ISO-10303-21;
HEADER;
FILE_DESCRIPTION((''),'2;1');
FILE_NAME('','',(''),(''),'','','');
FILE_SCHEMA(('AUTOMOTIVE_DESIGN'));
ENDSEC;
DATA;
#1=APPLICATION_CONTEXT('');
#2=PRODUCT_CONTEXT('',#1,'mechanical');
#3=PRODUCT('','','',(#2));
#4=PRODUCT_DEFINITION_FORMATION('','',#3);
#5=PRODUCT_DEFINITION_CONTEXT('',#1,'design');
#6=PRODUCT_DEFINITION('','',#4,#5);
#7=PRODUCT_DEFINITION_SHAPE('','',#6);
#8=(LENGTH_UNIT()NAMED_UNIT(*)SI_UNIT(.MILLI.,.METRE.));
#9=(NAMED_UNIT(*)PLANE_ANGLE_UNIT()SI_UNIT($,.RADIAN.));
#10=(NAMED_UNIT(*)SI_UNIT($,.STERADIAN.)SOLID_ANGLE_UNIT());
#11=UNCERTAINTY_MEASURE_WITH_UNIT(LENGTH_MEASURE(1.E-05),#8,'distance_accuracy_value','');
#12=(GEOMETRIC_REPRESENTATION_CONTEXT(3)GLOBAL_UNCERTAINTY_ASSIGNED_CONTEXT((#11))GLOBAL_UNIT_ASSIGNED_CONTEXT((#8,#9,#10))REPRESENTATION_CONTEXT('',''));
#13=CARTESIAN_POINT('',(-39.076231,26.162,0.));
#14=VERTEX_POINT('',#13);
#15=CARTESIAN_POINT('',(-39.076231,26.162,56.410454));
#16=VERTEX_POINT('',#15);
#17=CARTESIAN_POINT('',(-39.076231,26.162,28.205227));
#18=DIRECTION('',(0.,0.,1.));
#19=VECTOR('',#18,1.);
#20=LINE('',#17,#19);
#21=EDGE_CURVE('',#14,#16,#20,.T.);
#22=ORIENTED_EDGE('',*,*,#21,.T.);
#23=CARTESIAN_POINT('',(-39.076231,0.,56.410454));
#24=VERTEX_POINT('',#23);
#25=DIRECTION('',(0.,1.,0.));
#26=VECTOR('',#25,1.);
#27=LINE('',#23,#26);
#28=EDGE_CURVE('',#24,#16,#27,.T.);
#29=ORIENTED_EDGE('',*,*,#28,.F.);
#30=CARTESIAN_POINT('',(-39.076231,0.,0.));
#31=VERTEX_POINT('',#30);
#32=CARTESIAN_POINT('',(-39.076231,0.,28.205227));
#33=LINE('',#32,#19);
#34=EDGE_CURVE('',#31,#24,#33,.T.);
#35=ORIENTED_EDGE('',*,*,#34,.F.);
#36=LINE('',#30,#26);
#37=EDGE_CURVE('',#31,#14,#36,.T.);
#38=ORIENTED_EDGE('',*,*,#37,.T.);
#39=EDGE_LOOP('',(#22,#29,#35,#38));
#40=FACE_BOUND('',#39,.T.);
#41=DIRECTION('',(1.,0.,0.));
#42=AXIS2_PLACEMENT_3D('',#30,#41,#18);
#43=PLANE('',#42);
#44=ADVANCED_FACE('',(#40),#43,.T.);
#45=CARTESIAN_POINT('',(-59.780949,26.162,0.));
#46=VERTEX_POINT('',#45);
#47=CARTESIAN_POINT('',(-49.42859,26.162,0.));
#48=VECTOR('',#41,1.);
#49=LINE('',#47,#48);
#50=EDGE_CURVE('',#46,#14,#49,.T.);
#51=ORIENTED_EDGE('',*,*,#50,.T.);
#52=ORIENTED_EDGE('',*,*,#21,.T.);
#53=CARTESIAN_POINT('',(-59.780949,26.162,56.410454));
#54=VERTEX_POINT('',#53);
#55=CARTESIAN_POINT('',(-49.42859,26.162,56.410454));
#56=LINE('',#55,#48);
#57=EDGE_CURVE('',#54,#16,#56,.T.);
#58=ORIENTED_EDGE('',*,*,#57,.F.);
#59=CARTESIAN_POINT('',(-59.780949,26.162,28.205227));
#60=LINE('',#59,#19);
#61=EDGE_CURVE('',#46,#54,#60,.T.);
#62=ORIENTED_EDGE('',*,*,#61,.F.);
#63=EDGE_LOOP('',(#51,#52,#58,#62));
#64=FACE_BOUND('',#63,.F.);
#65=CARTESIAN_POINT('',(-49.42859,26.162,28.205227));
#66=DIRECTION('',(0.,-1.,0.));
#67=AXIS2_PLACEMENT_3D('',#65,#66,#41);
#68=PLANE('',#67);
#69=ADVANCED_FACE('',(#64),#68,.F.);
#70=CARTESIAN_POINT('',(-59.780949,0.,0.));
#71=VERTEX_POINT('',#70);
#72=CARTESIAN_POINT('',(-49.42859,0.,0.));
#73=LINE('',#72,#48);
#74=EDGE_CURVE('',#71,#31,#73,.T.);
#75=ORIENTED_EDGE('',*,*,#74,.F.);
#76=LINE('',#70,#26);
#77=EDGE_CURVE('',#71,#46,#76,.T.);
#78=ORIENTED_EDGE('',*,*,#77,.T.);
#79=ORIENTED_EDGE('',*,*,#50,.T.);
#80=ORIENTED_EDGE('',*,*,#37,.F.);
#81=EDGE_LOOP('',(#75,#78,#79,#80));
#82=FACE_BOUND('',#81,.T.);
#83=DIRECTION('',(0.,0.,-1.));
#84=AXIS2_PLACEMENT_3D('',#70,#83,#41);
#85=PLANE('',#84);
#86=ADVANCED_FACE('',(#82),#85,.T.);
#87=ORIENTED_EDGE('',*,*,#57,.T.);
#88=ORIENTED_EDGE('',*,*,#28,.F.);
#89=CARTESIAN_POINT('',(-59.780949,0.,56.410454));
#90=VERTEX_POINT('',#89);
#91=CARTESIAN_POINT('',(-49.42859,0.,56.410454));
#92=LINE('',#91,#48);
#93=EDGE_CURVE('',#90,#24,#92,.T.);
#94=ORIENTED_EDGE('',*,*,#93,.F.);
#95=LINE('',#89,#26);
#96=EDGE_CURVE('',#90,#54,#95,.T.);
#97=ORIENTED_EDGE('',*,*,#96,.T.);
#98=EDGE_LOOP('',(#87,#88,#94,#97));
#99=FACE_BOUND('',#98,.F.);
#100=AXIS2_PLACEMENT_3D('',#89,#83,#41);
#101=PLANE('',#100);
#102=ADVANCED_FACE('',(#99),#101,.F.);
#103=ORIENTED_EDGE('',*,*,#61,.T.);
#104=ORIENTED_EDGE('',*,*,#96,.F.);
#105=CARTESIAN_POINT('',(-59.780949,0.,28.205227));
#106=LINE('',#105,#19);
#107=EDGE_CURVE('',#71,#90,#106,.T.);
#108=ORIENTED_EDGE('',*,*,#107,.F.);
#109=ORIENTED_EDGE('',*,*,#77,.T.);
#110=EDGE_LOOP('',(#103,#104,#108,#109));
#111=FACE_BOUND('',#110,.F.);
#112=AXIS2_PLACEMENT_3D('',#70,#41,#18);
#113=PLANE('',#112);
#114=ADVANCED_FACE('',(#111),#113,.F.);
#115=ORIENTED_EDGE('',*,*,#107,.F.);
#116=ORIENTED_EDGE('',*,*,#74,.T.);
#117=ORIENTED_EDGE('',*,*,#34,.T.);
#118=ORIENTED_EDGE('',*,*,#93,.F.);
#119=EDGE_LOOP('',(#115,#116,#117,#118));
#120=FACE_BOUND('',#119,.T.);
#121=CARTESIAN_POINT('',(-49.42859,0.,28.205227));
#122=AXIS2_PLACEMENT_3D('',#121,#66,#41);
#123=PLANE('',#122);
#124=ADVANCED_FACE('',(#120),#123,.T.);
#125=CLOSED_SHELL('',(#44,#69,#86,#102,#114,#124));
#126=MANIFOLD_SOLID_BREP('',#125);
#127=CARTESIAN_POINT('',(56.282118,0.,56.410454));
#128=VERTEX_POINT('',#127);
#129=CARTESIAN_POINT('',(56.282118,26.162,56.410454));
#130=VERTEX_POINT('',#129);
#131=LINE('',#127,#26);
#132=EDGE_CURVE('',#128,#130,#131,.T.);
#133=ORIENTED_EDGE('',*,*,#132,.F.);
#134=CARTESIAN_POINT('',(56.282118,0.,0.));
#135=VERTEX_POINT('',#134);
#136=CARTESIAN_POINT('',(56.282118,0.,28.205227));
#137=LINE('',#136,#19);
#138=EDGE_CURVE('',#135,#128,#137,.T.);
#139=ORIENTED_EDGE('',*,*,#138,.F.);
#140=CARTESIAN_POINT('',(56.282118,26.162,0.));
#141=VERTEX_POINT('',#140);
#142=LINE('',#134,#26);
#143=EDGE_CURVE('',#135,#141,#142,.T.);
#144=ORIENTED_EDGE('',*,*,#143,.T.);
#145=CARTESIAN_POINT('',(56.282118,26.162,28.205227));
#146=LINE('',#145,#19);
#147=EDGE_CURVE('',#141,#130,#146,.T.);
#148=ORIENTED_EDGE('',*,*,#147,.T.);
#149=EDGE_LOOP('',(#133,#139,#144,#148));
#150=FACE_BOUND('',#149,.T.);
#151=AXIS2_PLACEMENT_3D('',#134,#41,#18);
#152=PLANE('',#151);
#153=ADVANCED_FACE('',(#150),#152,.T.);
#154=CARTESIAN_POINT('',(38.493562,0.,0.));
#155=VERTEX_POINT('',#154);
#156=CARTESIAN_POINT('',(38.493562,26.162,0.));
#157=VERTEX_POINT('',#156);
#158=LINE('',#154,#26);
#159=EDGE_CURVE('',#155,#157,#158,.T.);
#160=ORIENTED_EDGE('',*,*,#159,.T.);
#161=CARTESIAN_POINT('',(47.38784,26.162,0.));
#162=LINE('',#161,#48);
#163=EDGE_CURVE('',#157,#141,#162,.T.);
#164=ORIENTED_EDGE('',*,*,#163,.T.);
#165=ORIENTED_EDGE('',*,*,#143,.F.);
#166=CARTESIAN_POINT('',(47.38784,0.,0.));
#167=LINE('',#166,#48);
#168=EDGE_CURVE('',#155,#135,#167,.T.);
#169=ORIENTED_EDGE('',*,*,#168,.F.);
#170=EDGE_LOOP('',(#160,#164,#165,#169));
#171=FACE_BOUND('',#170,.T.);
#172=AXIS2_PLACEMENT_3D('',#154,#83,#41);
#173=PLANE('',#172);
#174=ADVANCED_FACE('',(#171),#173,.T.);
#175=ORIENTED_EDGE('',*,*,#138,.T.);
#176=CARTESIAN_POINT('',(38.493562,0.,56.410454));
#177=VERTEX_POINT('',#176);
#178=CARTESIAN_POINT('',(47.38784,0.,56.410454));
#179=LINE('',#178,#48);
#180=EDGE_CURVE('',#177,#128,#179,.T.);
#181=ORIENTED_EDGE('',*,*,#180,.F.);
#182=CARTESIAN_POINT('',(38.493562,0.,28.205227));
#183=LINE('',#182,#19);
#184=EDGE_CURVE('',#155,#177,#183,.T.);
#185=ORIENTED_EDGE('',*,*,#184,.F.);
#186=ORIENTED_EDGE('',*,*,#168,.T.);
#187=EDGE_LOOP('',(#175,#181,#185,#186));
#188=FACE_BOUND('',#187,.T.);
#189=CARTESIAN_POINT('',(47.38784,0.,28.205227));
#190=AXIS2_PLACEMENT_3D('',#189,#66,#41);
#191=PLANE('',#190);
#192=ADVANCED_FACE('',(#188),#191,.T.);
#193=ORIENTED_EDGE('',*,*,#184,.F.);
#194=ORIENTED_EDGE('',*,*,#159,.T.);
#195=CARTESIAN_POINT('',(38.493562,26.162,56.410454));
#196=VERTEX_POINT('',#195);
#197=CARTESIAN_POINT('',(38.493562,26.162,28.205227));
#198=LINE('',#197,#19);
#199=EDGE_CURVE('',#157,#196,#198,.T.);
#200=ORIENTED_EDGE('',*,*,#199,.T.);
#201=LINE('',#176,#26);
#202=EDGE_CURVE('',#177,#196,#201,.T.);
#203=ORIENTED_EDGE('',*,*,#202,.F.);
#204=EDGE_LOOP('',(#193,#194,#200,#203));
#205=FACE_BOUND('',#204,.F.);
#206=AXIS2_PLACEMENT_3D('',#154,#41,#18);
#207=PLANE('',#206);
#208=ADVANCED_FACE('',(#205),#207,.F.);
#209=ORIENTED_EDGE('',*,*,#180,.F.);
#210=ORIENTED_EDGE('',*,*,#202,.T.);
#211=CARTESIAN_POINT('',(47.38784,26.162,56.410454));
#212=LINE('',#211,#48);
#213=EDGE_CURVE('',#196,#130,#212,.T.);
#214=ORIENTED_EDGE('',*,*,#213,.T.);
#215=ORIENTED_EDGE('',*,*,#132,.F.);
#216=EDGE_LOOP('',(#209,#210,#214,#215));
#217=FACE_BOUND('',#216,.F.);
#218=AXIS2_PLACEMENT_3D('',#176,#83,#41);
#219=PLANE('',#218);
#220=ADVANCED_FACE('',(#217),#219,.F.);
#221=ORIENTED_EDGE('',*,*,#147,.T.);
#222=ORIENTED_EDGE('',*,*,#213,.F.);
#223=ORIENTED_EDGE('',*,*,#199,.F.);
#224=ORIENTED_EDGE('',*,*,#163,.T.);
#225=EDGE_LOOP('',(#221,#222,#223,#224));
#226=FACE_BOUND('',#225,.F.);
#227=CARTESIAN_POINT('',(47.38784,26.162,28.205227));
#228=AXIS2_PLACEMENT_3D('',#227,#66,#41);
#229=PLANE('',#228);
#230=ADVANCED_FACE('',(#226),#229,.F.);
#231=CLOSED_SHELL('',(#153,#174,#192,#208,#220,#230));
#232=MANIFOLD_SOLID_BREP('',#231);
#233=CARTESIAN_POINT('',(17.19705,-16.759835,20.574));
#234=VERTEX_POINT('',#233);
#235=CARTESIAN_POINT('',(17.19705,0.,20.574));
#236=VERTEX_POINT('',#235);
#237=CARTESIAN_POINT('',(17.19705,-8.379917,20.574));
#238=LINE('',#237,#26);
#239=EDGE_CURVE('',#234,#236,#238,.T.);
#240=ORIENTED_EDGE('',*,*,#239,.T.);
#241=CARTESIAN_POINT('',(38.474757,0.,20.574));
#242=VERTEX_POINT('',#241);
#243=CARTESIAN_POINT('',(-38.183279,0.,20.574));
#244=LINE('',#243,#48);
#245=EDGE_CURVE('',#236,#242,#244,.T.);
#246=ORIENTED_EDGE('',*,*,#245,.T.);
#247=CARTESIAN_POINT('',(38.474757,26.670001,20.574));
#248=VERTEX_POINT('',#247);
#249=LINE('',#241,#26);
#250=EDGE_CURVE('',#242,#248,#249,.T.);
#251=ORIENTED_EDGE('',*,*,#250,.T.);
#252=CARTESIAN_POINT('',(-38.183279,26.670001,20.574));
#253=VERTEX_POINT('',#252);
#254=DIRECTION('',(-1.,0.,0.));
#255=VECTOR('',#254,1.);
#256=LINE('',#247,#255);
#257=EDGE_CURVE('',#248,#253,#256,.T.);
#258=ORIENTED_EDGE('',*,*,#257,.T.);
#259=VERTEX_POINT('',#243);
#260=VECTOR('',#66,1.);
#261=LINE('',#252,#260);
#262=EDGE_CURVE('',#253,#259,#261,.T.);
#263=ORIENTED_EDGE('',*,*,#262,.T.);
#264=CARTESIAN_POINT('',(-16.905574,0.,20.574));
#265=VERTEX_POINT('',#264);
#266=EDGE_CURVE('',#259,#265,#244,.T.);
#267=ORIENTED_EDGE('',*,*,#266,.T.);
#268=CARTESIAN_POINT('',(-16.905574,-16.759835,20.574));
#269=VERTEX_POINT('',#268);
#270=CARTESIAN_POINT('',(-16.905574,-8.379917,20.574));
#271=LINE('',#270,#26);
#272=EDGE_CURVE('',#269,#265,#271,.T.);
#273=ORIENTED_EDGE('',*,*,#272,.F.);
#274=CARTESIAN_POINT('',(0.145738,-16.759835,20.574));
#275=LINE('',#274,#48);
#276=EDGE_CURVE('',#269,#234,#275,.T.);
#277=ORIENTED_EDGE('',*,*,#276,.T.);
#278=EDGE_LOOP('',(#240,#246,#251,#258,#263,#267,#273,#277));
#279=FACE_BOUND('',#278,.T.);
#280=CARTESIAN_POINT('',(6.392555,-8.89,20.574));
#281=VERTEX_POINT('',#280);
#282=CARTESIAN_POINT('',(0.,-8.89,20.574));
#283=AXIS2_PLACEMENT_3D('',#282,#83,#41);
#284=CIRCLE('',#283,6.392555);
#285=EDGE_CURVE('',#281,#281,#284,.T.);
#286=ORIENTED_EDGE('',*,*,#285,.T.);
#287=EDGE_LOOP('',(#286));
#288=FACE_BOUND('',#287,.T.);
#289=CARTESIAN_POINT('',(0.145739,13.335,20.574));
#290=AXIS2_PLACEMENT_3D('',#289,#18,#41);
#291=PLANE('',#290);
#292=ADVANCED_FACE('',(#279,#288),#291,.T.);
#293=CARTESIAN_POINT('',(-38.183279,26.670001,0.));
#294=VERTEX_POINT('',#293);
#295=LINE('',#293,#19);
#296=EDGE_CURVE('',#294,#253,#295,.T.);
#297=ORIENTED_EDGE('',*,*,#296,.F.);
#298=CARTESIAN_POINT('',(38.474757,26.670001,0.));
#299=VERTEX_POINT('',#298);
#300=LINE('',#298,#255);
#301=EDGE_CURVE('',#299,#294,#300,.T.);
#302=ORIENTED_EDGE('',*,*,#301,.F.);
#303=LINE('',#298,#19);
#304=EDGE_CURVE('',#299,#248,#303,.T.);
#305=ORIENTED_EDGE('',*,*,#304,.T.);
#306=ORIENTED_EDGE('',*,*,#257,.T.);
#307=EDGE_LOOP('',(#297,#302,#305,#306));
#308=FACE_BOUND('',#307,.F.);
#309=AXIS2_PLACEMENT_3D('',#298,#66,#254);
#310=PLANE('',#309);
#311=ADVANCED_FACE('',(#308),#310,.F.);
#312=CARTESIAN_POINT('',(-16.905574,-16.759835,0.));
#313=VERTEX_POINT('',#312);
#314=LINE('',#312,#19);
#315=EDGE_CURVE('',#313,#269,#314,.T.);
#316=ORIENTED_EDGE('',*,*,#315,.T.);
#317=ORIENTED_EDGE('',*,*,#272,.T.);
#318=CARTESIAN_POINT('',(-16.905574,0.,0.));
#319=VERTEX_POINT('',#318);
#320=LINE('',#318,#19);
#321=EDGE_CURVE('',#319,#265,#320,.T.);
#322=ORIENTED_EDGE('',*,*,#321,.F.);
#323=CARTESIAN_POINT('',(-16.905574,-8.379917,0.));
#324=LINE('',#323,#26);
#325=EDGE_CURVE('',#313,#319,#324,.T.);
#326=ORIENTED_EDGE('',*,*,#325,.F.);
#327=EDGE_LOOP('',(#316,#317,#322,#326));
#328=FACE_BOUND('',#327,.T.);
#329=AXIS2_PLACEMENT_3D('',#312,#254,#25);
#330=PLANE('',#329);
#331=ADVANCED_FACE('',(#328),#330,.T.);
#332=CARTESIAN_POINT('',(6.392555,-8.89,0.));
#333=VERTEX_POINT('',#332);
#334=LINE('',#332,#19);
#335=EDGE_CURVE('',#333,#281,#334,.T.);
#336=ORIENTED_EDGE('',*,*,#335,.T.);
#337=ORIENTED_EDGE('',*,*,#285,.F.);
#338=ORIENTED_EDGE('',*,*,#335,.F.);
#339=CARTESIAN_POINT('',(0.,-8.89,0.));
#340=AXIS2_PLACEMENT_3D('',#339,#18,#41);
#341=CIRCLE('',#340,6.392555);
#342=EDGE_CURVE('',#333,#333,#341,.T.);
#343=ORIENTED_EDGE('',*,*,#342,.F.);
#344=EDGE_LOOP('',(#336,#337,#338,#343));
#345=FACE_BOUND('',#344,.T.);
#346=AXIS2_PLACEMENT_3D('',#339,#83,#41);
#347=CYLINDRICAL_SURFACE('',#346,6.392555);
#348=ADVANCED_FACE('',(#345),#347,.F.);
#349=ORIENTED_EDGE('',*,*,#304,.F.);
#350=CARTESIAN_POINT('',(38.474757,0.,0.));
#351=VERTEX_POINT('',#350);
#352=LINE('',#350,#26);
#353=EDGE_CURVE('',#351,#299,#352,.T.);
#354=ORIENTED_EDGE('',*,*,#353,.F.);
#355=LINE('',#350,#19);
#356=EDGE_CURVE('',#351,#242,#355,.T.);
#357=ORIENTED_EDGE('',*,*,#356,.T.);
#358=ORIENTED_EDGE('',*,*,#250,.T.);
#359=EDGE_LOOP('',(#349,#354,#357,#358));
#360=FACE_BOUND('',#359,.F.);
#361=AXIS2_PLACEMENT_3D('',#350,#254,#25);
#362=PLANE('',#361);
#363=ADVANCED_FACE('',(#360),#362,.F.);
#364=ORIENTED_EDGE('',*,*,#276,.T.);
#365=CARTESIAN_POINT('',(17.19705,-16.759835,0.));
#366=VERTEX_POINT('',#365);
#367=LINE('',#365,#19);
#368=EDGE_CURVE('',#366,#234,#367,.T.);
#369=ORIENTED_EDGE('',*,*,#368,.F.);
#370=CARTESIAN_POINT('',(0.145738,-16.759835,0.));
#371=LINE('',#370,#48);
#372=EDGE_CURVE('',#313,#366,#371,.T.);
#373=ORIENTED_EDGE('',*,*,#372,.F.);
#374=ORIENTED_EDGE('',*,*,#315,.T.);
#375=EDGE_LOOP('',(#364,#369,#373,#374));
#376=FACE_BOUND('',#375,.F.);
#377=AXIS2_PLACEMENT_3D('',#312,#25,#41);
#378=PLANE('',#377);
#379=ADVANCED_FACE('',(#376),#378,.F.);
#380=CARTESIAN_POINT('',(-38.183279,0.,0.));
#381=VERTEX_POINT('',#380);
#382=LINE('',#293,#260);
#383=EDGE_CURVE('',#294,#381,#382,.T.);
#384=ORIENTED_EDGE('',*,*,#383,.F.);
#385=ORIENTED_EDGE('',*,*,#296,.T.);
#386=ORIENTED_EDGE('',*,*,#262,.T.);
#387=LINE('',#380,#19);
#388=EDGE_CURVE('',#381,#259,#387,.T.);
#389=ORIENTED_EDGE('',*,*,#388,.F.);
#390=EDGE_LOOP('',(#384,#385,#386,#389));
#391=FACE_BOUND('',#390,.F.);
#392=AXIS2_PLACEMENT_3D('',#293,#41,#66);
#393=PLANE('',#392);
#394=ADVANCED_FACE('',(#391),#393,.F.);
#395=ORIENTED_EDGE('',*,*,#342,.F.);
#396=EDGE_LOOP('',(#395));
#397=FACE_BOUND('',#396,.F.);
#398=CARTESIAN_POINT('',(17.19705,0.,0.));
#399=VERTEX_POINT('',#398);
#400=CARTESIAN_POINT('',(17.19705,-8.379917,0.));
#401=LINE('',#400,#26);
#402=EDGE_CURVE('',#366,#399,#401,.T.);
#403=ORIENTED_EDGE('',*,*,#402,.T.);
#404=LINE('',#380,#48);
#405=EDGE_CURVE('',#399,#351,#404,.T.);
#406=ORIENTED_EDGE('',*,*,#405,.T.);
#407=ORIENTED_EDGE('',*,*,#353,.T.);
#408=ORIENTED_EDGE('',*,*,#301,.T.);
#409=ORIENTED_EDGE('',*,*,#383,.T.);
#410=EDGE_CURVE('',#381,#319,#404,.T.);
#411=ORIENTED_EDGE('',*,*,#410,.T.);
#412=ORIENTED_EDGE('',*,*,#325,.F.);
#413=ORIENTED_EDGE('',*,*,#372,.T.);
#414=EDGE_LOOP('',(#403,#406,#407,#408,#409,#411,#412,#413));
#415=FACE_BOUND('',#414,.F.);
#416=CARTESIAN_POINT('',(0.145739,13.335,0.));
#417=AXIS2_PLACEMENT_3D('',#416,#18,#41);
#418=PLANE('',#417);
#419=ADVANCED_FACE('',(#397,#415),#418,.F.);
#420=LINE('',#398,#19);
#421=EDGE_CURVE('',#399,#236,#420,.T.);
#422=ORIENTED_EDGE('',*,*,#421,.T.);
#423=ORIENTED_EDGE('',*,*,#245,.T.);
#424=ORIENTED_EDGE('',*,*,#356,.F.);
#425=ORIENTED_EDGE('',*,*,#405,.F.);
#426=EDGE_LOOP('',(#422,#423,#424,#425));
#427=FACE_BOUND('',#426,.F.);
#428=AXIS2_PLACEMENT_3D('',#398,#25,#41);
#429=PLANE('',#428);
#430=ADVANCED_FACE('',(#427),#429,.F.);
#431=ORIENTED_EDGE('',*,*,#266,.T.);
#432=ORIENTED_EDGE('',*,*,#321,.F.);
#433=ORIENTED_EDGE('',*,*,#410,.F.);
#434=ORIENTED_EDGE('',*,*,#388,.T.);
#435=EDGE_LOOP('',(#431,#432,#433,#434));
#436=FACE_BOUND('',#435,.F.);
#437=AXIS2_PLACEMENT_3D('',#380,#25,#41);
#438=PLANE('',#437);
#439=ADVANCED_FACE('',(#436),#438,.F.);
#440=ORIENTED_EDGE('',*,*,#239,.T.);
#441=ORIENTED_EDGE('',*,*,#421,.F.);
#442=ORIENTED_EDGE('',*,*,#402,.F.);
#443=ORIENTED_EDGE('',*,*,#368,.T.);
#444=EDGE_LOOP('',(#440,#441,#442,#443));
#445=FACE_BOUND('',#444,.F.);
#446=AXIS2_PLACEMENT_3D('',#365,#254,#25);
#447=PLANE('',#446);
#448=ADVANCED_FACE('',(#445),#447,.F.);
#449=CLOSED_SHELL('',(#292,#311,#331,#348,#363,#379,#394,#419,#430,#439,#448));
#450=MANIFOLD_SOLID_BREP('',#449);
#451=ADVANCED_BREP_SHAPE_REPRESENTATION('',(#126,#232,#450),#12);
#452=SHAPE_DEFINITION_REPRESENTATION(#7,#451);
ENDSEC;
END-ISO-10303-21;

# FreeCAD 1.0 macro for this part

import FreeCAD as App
import Part
import Sketcher
Q = App.Units.Quantity

doc = App.newDocument("Part")
body = doc.addObject("PartDesign::Body", "Body")

sketch1 = doc.addObject("Sketcher::SketchObject", "Sketch")
body.addObject(sketch1)
sketch1.AttachmentSupport = (doc.XY_Plane, [""])
sketch1.MapMode = "FlatFace"
sketch1.addGeometry([
    Part.LineSegment(App.Vector(-38, 27, 0), App.Vector(-38, 0, 0)),
    Part.LineSegment(App.Vector(-38, 0, 0), App.Vector(-17, 0, 0)),
    Part.LineSegment(App.Vector(-17, 0, 0), App.Vector(-17, -17, 0)),
    Part.LineSegment(App.Vector(-17, -17, 0), App.Vector(17, -17, 0)),
    Part.LineSegment(App.Vector(17, -17, 0), App.Vector(17, 0, 0)),
    Part.LineSegment(App.Vector(17, 0, 0), App.Vector(38, 0, 0)),
    Part.LineSegment(App.Vector(38, 0, 0), App.Vector(38, 27, 0)),
    Part.LineSegment(App.Vector(38, 27, 0), App.Vector(-38, 27, 0)),
], False)
sketch1.addConstraint([
    Sketcher.Constraint("Coincident", 0, 2, 1, 1),
    Sketcher.Constraint("Coincident", 1, 2, 2, 1),
    Sketcher.Constraint("Coincident", 2, 2, 3, 1),
    Sketcher.Constraint("Coincident", 3, 2, 4, 1),
    Sketcher.Constraint("Coincident", 4, 2, 5, 1),
    Sketcher.Constraint("Coincident", 5, 2, 6, 1),
    Sketcher.Constraint("Coincident", 6, 2, 7, 1),
    Sketcher.Constraint("Coincident", 7, 2, 0, 1),
    Sketcher.Constraint("Vertical", 0),
    Sketcher.Constraint("Horizontal", 1),
    Sketcher.Constraint("Vertical", 2),
    Sketcher.Constraint("Horizontal", 3),
    Sketcher.Constraint("Vertical", 4),
    Sketcher.Constraint("Horizontal", 5),
    Sketcher.Constraint("Vertical", 6),
    Sketcher.Constraint("Horizontal", 7),
    Sketcher.Constraint("PointOnObject", 0, 2, -1),
    Sketcher.Constraint("PointOnObject", 4, 2, -1),
    Sketcher.Constraint("Equal", 1, 5),
    Sketcher.Constraint("DistanceY", 0, 2, 0, 1, Q("1.05 in")),
    Sketcher.Constraint("DistanceX", 1, 1, 1, 2, 21.277705),
    Sketcher.Constraint("DistanceX", 3, 1, 3, 2, 34.102624),
    Sketcher.Constraint("DistanceY", 2, 2, 2, 1, 16.759835),
    Sketcher.Constraint("DistanceX", 0, 2, -1, 1, 38.183279),
])
pad1 = doc.addObject("PartDesign::Pad", "Pad")
body.addObject(pad1)
pad1.Profile = sketch1
pad1.Length = Q("0.81 in")

sketch2 = doc.addObject("Sketcher::SketchObject", "Sketch001")
body.addObject(sketch2)
sketch2.AttachmentSupport = (doc.XY_Plane, [""])
sketch2.MapMode = "FlatFace"
sketch2.addGeometry(Part.Circle(App.Vector(0, -9, 0), App.Vector(0, 0, 1), 6), False)
sketch2.addConstraint([
    Sketcher.Constraint("PointOnObject", 0, 3, -2),
    Sketcher.Constraint("DistanceY", 0, 3, -1, 1, Q("0.35 in")),
    Sketcher.Constraint("Diameter", 0, 12.78511),
])
pocket1 = doc.addObject("PartDesign::Pocket", "Pocket")
body.addObject(pocket1)
pocket1.Profile = sketch2
pocket1.Length = Q("2.77 in")
pocket1.Reversed = True
body2 = doc.addObject("PartDesign::Body", "Body001")
body2.AllowCompound = True

sketch3 = doc.addObject("Sketcher::SketchObject", "Sketch002")
body2.addObject(sketch3)
sketch3.AttachmentSupport = (doc.getObject("XZ_Plane001"), [""])
sketch3.MapMode = "FlatFace"
sketch3.addGeometry([
    Part.LineSegment(App.Vector(-60, 56, 0), App.Vector(-60, 0, 0)),
    Part.LineSegment(App.Vector(-60, 0, 0), App.Vector(-39, 0, 0)),
    Part.LineSegment(App.Vector(-39, 0, 0), App.Vector(-39, 56, 0)),
    Part.LineSegment(App.Vector(-39, 56, 0), App.Vector(-60, 56, 0)),
    Part.LineSegment(App.Vector(38, 56, 0), App.Vector(38, 0, 0)),
    Part.LineSegment(App.Vector(38, 0, 0), App.Vector(56, 0, 0)),
    Part.LineSegment(App.Vector(56, 0, 0), App.Vector(56, 56, 0)),
    Part.LineSegment(App.Vector(56, 56, 0), App.Vector(38, 56, 0)),
], False)
sketch3.addConstraint([
    Sketcher.Constraint("Coincident", 0, 2, 1, 1),
    Sketcher.Constraint("Coincident", 1, 2, 2, 1),
    Sketcher.Constraint("Coincident", 2, 2, 3, 1),
    Sketcher.Constraint("Coincident", 3, 2, 0, 1),
    Sketcher.Constraint("Coincident", 4, 2, 5, 1),
    Sketcher.Constraint("Coincident", 5, 2, 6, 1),
    Sketcher.Constraint("Coincident", 6, 2, 7, 1),
    Sketcher.Constraint("Coincident", 7, 2, 4, 1),
    Sketcher.Constraint("Vertical", 0),
    Sketcher.Constraint("Horizontal", 1),
    Sketcher.Constraint("Vertical", 2),
    Sketcher.Constraint("Horizontal", 3),
    Sketcher.Constraint("Vertical", 4),
    Sketcher.Constraint("Horizontal", 5),
    Sketcher.Constraint("Vertical", 6),
    Sketcher.Constraint("Horizontal", 7),
    Sketcher.Constraint("PointOnObject", 0, 2, -1),
    Sketcher.Constraint("PointOnObject", 4, 2, -1),
    Sketcher.Constraint("Horizontal", 3, 2, 6, 2),
    Sketcher.Constraint("DistanceX", 1, 1, 1, 2, 20.704717),
    Sketcher.Constraint("DistanceX", 5, 1, 5, 2, 17.788556),
    Sketcher.Constraint("DistanceY", 0, 2, 0, 1, 56.410454),
    Sketcher.Constraint("DistanceX", 0, 2, -1, 1, 59.780949),
    Sketcher.Constraint("DistanceX", -1, 1, 4, 2, 38.493562),
])
pad2 = doc.addObject("PartDesign::Pad", "Pad001")
body2.addObject(pad2)
pad2.Profile = sketch3
pad2.Length = Q("1.03 in")
pad2.Reversed = True

doc.recompute()
